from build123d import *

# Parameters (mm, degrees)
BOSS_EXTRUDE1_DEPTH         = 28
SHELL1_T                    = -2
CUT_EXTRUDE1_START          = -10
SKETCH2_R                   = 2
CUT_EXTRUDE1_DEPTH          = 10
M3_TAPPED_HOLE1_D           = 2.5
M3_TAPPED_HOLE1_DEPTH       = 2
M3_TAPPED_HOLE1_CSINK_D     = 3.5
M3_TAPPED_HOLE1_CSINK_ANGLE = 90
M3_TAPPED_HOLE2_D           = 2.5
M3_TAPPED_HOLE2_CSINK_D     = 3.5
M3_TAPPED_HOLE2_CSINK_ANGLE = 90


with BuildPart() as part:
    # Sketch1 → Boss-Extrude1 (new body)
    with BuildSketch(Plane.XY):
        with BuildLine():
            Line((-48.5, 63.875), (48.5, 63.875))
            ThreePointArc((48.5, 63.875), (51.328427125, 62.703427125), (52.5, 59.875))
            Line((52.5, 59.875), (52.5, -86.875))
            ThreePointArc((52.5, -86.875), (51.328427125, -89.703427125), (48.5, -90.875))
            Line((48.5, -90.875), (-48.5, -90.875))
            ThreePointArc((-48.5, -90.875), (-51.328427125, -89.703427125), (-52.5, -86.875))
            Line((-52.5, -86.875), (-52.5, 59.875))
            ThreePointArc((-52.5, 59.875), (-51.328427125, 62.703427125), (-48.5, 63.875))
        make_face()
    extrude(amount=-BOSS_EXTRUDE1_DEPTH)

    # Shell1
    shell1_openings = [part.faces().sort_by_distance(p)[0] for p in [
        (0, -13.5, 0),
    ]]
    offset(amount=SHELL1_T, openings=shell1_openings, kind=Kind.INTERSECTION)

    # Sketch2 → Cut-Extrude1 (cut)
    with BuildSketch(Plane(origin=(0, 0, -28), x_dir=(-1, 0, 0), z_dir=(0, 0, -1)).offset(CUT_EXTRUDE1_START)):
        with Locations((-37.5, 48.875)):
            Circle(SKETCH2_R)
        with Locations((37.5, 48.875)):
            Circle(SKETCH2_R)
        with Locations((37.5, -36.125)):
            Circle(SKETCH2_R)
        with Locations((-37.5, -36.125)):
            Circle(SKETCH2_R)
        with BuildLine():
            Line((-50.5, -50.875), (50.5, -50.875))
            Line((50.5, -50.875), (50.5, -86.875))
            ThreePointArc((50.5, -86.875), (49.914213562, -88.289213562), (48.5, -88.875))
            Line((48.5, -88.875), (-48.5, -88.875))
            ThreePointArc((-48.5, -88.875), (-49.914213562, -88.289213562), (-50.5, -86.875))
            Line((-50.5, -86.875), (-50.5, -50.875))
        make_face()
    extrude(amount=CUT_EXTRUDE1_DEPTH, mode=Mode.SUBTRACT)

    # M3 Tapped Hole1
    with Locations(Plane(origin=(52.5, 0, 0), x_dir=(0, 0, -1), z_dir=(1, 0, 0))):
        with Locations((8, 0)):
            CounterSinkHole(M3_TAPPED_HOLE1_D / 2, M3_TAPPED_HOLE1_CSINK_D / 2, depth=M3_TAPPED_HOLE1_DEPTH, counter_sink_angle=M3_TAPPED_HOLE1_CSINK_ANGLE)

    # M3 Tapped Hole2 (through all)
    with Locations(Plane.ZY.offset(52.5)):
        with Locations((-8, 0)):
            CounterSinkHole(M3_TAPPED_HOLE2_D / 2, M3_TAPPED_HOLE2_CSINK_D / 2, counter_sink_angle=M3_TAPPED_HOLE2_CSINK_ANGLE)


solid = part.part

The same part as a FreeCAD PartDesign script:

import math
import FreeCAD as App
import Part
import Sketcher

V = App.Vector


def faces_at(feature, points):
    """Names of the faces that lie closest to the given points."""
    faces = feature.Shape.Faces
    near = lambda p: min(range(len(faces)), key=lambda i: faces[i].distToShape(Part.Vertex(*p))[0])
    return sorted({f"Face{near(p) + 1}" for p in points})

doc = App.newDocument("Part")
body = doc.addObject("PartDesign::Body", "Body")

sketch1 = body.newObject("Sketcher::SketchObject", "Sketch")
sketch1.AttachmentSupport = (doc.getObject("XY_Plane"), [""])
sketch1.MapMode = "FlatFace"
sketch1.addGeometry([
    Part.LineSegment(V(48.5, 63.875, 0), V(-48.5, 63.875, 0)),
    Part.ArcOfCircle(Part.Circle(V(-48.5, 59.875, 0), V(0, 0, 1), 4), math.radians(90), math.radians(180)),
    Part.LineSegment(V(-52.5, 59.875, 0), V(-52.5, -86.875, 0)),
    Part.ArcOfCircle(Part.Circle(V(-48.5, -86.875, 0), V(0, 0, 1), 4), math.radians(180), math.radians(270)),
    Part.LineSegment(V(-48.5, -90.875, 0), V(48.5, -90.875, 0)),
    Part.ArcOfCircle(Part.Circle(V(48.5, -86.875, 0), V(0, 0, 1), 4), math.radians(-90), math.radians(0)),
    Part.LineSegment(V(52.5, -86.875, 0), V(52.5, 59.875, 0)),
    Part.ArcOfCircle(Part.Circle(V(48.5, 59.875, 0), V(0, 0, 1), 4), math.radians(0), math.radians(90)),
], False)
sketch1.addConstraint([
    Sketcher.Constraint("Tangent", 0, 2, 1, 1),
    Sketcher.Constraint("Tangent", 1, 2, 2, 1),
    Sketcher.Constraint("Tangent", 2, 2, 3, 1),
    Sketcher.Constraint("Tangent", 3, 2, 4, 1),
    Sketcher.Constraint("Tangent", 4, 2, 5, 1),
    Sketcher.Constraint("Tangent", 5, 2, 6, 1),
    Sketcher.Constraint("Tangent", 6, 2, 7, 1),
    Sketcher.Constraint("Tangent", 7, 2, 0, 1),
    Sketcher.Constraint("Horizontal", 0),
    Sketcher.Constraint("Vertical", 2),
    Sketcher.Constraint("Horizontal", 4),
    Sketcher.Constraint("Vertical", 6),
    Sketcher.Constraint("Equal", 1, 3),
    Sketcher.Constraint("Equal", 3, 5),
    Sketcher.Constraint("Equal", 5, 7),
    Sketcher.Constraint("Radius", 1, 4.0),
    Sketcher.Constraint("DistanceX", 0, 2, 0, 1, 97.0),
    Sketcher.Constraint("DistanceY", 2, 2, 2, 1, 146.75),
    Sketcher.Constraint("DistanceX", 1, 3, -1, 1, 48.5),
    Sketcher.Constraint("DistanceY", -1, 1, 1, 3, 59.875),
])
pad1 = body.newObject("PartDesign::Pad", "Pad")
pad1.Profile = sketch1
pad1.Length = 28
pad1.Reversed = True
doc.recompute()

thickness = body.newObject("PartDesign::Thickness", "Thickness")
thickness.Base = (pad1, faces_at(pad1, [(0, -13.5, 0)]))
thickness.Value = 2
thickness.Reversed = True
thickness.Join = "Intersection"

sketch2 = body.newObject("Sketcher::SketchObject", "Sketch001")
sketch2.AttachmentSupport = (doc.getObject("XY_Plane"), [""])
sketch2.MapMode = "FlatFace"
sketch2.AttachmentOffset = App.Placement(V(0, 0, -18), App.Rotation())
sketch2.addGeometry([
    Part.Circle(V(37.5, 48.875, 0), V(0, 0, 1), 2),
    Part.Circle(V(-37.5, 48.875, 0), V(0, 0, 1), 2),
    Part.Circle(V(-37.5, -36.125, 0), V(0, 0, 1), 2),
    Part.Circle(V(37.5, -36.125, 0), V(0, 0, 1), 2),
    Part.LineSegment(V(-50.5, -50.875, 0), V(50.5, -50.875, 0)),
    Part.LineSegment(V(50.5, -50.875, 0), V(50.5, -86.875, 0)),
    Part.ArcOfCircle(Part.Circle(V(48.5, -86.875, 0), V(0, 0, 1), 2), math.radians(-90), math.radians(0)),
    Part.LineSegment(V(48.5, -88.875, 0), V(-48.5, -88.875, 0)),
    Part.ArcOfCircle(Part.Circle(V(-48.5, -86.875, 0), V(0, 0, 1), 2), math.radians(-180), math.radians(-90)),
    Part.LineSegment(V(-50.5, -86.875, 0), V(-50.5, -50.875, 0)),
], False)
sketch2.addConstraint([
    Sketcher.Constraint("Coincident", 4, 2, 5, 1),
    Sketcher.Constraint("Tangent", 5, 2, 6, 2),
    Sketcher.Constraint("Tangent", 6, 1, 7, 1),
    Sketcher.Constraint("Tangent", 7, 2, 8, 2),
    Sketcher.Constraint("Tangent", 8, 1, 9, 1),
    Sketcher.Constraint("Coincident", 9, 2, 4, 1),
    Sketcher.Constraint("Horizontal", 4),
    Sketcher.Constraint("Vertical", 5),
    Sketcher.Constraint("Horizontal", 7),
    Sketcher.Constraint("Vertical", 9),
    Sketcher.Constraint("Equal", 0, 1),
    Sketcher.Constraint("Equal", 1, 2),
    Sketcher.Constraint("Equal", 2, 3),
    Sketcher.Constraint("Equal", 3, 6),
    Sketcher.Constraint("Equal", 6, 8),
    Sketcher.Constraint("Symmetric", 0, 3, 1, 3, -2),
    Sketcher.Constraint("Symmetric", 2, 3, 3, 3, -2),
    Sketcher.Constraint("Vertical", 1, 3, 2, 3),
    Sketcher.Constraint("Diameter", 0, 4.0),
    Sketcher.Constraint("DistanceX", 4, 1, 4, 2, 101.0),
    Sketcher.Constraint("DistanceY", 5, 2, 5, 1, 36.0),
    Sketcher.Constraint("DistanceX", 1, 3, 0, 3, 75.0),
    Sketcher.Constraint("DistanceY", 2, 3, 1, 3, 85.0),
    Sketcher.Constraint("DistanceX", 3, 3, 6, 3, 11.0),
    Sketcher.Constraint("DistanceY", 6, 3, 3, 3, 50.75),
    Sketcher.Constraint("DistanceY", -1, 1, 0, 3, 48.875),
])
pocket1 = body.newObject("PartDesign::Pocket", "Pocket")
pocket1.Profile = sketch2
pocket1.Length = 10

sketch3 = body.newObject("Sketcher::SketchObject", "Sketch002")
sketch3.AttachmentSupport = (doc.getObject("YZ_Plane"), [""])
sketch3.MapMode = "FlatFace"
sketch3.AttachmentOffset = App.Placement(V(0, 0, 52.5), App.Rotation())
sketch3.addGeometry(Part.Circle(V(0, -8, 0), V(0, 0, 1), 1.25), False)
sketch3.addConstraint([
    Sketcher.Constraint("PointOnObject", 0, 3, -2),
    Sketcher.Constraint("Diameter", 0, 2.5),
    Sketcher.Constraint("DistanceY", 0, 3, -1, 1, 8.0),
])
doc.recompute()
hole = body.newObject("PartDesign::Hole", "Hole")
hole.Profile = sketch3
hole.ThreadType = "None"
hole.Diameter = 2.5
hole.DepthType = "Dimension"
hole.Depth = 2
hole.DrillPoint = "Flat"
hole.HoleCutType = "Countersink"
hole.HoleCutDiameter = 3.5
hole.HoleCutCountersinkAngle = 90

sketch4 = body.newObject("Sketcher::SketchObject", "Sketch003")
sketch4.AttachmentSupport = (doc.getObject("YZ_Plane"), [""])
sketch4.MapMode = "FlatFace"
sketch4.AttachmentOffset = App.Placement(V(0, 0, -52.5), App.Rotation())
sketch4.addGeometry(Part.Circle(V(0, -8, 0), V(0, 0, 1), 1.25), False)
sketch4.addConstraint([
    Sketcher.Constraint("PointOnObject", 0, 3, -2),
    Sketcher.Constraint("Diameter", 0, 2.5),
    Sketcher.Constraint("DistanceY", 0, 3, -1, 1, 8.0),
])
doc.recompute()
hole2 = body.newObject("PartDesign::Hole", "Hole001")
hole2.Profile = sketch4
hole2.ThreadType = "None"
hole2.Diameter = 2.5
hole2.DepthType = "ThroughAll"
hole2.HoleCutType = "Countersink"
hole2.HoleCutDiameter = 3.5
hole2.HoleCutCountersinkAngle = 90
hole2.Reversed = True

doc.recompute()
